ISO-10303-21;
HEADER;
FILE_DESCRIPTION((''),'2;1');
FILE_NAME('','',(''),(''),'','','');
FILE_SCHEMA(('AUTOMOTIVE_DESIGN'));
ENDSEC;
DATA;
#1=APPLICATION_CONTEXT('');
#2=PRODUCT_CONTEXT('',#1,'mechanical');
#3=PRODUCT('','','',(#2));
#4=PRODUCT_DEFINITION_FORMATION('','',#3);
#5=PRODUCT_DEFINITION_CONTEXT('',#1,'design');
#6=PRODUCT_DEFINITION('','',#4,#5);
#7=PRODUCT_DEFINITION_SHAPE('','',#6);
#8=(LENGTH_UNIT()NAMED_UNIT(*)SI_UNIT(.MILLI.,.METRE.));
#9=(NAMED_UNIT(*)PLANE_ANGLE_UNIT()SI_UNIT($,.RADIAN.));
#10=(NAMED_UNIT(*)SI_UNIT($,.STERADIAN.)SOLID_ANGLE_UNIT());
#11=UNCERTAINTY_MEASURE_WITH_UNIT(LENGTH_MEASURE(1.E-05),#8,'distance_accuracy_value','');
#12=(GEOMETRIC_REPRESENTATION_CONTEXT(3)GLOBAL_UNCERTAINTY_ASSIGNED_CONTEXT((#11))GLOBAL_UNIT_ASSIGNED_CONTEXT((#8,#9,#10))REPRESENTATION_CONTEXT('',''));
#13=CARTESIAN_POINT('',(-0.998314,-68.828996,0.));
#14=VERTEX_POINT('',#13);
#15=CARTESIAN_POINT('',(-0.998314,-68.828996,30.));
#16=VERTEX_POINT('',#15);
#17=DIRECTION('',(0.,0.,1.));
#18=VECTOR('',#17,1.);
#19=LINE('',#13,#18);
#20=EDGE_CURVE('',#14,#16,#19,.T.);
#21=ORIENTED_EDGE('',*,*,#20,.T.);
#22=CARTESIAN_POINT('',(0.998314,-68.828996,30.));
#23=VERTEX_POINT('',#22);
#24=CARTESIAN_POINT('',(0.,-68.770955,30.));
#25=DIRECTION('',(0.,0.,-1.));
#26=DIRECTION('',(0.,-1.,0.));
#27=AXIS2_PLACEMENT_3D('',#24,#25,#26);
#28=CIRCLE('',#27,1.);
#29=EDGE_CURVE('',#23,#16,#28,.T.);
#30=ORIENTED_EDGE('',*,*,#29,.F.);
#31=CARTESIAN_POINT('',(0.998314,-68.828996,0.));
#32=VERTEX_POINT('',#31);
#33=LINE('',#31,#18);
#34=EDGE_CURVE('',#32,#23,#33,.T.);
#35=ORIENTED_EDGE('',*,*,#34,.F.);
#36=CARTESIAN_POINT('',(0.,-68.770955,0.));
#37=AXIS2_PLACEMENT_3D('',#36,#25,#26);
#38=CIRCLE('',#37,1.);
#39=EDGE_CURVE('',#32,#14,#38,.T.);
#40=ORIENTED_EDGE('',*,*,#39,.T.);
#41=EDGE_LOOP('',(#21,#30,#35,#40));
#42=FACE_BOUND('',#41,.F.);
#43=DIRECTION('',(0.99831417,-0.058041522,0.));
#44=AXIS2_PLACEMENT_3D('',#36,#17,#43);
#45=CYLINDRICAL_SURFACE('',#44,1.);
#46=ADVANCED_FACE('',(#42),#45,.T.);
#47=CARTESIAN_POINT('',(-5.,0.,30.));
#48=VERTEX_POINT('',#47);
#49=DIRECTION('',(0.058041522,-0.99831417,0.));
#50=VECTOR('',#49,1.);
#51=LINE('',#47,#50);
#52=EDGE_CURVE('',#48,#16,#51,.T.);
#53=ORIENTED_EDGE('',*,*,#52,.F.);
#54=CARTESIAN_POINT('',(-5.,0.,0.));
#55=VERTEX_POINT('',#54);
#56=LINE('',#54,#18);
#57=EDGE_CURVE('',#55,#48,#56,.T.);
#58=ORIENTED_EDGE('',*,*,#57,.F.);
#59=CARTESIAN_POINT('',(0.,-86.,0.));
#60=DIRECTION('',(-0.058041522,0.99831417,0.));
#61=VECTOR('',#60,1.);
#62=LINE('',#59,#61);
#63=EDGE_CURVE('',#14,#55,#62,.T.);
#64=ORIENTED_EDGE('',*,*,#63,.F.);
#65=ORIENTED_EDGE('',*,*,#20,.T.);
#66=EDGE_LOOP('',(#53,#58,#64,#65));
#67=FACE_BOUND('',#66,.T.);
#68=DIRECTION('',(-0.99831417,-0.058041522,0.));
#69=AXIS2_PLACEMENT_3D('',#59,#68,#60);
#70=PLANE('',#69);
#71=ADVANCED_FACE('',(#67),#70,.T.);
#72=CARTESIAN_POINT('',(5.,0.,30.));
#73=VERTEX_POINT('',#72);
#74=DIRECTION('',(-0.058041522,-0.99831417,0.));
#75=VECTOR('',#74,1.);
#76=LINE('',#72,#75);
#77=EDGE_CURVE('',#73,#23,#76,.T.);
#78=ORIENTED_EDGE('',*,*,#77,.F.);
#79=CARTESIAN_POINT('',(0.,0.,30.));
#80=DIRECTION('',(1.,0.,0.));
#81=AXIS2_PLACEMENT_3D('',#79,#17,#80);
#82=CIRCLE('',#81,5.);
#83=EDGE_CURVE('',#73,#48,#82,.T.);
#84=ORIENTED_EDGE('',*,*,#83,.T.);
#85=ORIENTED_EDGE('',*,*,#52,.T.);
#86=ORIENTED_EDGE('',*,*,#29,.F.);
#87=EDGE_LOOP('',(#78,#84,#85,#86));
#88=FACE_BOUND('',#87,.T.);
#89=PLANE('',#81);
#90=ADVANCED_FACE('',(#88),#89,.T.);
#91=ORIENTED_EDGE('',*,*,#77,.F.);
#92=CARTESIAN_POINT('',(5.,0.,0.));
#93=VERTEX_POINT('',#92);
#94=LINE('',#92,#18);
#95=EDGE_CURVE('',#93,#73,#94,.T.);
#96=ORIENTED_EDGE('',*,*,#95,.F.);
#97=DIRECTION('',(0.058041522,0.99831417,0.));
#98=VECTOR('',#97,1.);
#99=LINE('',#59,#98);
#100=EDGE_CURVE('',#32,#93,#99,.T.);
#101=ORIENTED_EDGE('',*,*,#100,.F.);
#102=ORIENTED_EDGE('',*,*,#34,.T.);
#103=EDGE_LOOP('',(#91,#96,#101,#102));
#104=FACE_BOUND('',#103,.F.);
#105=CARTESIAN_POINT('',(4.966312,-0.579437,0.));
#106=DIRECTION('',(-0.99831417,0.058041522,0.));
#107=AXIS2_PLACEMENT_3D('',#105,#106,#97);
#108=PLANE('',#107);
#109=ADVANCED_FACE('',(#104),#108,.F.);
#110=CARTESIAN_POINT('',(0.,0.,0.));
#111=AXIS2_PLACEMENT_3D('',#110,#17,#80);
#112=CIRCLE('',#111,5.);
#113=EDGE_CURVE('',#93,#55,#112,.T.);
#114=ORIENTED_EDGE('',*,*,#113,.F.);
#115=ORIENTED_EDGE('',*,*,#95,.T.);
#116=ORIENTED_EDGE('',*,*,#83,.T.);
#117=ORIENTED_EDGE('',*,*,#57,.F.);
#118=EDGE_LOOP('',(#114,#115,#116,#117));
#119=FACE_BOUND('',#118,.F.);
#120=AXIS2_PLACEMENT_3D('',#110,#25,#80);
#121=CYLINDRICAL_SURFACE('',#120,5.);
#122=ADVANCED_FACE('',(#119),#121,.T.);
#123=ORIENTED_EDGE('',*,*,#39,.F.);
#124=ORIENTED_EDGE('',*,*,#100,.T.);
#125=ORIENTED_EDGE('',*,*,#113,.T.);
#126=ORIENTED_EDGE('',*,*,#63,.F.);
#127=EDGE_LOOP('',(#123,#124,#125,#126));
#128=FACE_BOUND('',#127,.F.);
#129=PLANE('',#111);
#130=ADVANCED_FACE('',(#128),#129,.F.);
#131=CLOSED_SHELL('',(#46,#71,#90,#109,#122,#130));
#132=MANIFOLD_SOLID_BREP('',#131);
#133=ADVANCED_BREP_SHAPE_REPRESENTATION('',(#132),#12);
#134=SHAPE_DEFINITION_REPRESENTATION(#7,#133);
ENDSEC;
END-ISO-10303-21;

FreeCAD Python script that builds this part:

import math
import FreeCAD as App
import Part
import Sketcher

V = App.Vector
Q = App.Units.Quantity


def edges_at(feature, points):
    """Names of the edges that pass closest to the given points."""
    edges = feature.Shape.Edges
    near = lambda p: min(range(len(edges)), key=lambda i: edges[i].distToShape(Part.Vertex(*p))[0])
    return sorted({f"Edge{near(p) + 1}" for p in points})

doc = App.newDocument("Part")
params = doc.addObject("Spreadsheet::Sheet", "Params")
for row, (alias, value) in enumerate([
    ("sketch1_radius", "5 mm"),
    ("pad1_length", "30 mm"),
    ("fillet_radius", "1 mm"),
], start=1):
    params.set(f"A{row}", alias)
    params.set(f"B{row}", "=" + value)
    params.setAlias(f"B{row}", alias)

body = doc.addObject("PartDesign::Body", "Body")

# Sketch on XY plane
sketch1 = doc.addObject("Sketcher::SketchObject", "Sketch")
body.addObject(sketch1)
sketch1.AttachmentSupport = (doc.XY_Plane, [""])
sketch1.MapMode = "FlatFace"
sketch1.addGeometry([
    Part.ArcOfCircle(Part.Circle(V(0, 0, 0), V(0, 0, 1), 5), math.radians(0), math.radians(180)),
    Part.LineSegment(V(-5, 0, 0), V(0, -86, 0)),
    Part.LineSegment(V(0, -86, 0), V(5, 0, 0)),
], False)
sketch1.addConstraint([
    Sketcher.Constraint("Coincident", 0, 2, 1, 1),
    Sketcher.Constraint("Coincident", 1, 2, 2, 1),
    Sketcher.Constraint("Coincident", 2, 2, 0, 1),
    Sketcher.Constraint("Coincident", 0, 3, -1, 1),
    Sketcher.Constraint("PointOnObject", 0, 2, -1),
    Sketcher.Constraint("PointOnObject", 1, 2, -2),
    Sketcher.Constraint("PointOnObject", 2, 2, -1),
    Sketcher.Constraint("Radius", 0, Q("5 mm")),
    Sketcher.Constraint("DistanceY", 1, 2, -1, 1, Q("86 mm")),
])
sketch1.setExpression("Constraints[7]", "Params.sketch1_radius")
pad1 = doc.addObject("PartDesign::Pad", "Pad")
body.addObject(pad1)
pad1.Profile = sketch1
pad1.setExpression("Length", "Params.pad1_length")
doc.recompute()

fillet = doc.addObject("PartDesign::Fillet", "Fillet")
body.addObject(fillet)
fillet.Base = (pad1, edges_at(pad1, [(0, -86, 15)]))
fillet.setExpression("Radius", "Params.fillet_radius")

doc.recompute()
